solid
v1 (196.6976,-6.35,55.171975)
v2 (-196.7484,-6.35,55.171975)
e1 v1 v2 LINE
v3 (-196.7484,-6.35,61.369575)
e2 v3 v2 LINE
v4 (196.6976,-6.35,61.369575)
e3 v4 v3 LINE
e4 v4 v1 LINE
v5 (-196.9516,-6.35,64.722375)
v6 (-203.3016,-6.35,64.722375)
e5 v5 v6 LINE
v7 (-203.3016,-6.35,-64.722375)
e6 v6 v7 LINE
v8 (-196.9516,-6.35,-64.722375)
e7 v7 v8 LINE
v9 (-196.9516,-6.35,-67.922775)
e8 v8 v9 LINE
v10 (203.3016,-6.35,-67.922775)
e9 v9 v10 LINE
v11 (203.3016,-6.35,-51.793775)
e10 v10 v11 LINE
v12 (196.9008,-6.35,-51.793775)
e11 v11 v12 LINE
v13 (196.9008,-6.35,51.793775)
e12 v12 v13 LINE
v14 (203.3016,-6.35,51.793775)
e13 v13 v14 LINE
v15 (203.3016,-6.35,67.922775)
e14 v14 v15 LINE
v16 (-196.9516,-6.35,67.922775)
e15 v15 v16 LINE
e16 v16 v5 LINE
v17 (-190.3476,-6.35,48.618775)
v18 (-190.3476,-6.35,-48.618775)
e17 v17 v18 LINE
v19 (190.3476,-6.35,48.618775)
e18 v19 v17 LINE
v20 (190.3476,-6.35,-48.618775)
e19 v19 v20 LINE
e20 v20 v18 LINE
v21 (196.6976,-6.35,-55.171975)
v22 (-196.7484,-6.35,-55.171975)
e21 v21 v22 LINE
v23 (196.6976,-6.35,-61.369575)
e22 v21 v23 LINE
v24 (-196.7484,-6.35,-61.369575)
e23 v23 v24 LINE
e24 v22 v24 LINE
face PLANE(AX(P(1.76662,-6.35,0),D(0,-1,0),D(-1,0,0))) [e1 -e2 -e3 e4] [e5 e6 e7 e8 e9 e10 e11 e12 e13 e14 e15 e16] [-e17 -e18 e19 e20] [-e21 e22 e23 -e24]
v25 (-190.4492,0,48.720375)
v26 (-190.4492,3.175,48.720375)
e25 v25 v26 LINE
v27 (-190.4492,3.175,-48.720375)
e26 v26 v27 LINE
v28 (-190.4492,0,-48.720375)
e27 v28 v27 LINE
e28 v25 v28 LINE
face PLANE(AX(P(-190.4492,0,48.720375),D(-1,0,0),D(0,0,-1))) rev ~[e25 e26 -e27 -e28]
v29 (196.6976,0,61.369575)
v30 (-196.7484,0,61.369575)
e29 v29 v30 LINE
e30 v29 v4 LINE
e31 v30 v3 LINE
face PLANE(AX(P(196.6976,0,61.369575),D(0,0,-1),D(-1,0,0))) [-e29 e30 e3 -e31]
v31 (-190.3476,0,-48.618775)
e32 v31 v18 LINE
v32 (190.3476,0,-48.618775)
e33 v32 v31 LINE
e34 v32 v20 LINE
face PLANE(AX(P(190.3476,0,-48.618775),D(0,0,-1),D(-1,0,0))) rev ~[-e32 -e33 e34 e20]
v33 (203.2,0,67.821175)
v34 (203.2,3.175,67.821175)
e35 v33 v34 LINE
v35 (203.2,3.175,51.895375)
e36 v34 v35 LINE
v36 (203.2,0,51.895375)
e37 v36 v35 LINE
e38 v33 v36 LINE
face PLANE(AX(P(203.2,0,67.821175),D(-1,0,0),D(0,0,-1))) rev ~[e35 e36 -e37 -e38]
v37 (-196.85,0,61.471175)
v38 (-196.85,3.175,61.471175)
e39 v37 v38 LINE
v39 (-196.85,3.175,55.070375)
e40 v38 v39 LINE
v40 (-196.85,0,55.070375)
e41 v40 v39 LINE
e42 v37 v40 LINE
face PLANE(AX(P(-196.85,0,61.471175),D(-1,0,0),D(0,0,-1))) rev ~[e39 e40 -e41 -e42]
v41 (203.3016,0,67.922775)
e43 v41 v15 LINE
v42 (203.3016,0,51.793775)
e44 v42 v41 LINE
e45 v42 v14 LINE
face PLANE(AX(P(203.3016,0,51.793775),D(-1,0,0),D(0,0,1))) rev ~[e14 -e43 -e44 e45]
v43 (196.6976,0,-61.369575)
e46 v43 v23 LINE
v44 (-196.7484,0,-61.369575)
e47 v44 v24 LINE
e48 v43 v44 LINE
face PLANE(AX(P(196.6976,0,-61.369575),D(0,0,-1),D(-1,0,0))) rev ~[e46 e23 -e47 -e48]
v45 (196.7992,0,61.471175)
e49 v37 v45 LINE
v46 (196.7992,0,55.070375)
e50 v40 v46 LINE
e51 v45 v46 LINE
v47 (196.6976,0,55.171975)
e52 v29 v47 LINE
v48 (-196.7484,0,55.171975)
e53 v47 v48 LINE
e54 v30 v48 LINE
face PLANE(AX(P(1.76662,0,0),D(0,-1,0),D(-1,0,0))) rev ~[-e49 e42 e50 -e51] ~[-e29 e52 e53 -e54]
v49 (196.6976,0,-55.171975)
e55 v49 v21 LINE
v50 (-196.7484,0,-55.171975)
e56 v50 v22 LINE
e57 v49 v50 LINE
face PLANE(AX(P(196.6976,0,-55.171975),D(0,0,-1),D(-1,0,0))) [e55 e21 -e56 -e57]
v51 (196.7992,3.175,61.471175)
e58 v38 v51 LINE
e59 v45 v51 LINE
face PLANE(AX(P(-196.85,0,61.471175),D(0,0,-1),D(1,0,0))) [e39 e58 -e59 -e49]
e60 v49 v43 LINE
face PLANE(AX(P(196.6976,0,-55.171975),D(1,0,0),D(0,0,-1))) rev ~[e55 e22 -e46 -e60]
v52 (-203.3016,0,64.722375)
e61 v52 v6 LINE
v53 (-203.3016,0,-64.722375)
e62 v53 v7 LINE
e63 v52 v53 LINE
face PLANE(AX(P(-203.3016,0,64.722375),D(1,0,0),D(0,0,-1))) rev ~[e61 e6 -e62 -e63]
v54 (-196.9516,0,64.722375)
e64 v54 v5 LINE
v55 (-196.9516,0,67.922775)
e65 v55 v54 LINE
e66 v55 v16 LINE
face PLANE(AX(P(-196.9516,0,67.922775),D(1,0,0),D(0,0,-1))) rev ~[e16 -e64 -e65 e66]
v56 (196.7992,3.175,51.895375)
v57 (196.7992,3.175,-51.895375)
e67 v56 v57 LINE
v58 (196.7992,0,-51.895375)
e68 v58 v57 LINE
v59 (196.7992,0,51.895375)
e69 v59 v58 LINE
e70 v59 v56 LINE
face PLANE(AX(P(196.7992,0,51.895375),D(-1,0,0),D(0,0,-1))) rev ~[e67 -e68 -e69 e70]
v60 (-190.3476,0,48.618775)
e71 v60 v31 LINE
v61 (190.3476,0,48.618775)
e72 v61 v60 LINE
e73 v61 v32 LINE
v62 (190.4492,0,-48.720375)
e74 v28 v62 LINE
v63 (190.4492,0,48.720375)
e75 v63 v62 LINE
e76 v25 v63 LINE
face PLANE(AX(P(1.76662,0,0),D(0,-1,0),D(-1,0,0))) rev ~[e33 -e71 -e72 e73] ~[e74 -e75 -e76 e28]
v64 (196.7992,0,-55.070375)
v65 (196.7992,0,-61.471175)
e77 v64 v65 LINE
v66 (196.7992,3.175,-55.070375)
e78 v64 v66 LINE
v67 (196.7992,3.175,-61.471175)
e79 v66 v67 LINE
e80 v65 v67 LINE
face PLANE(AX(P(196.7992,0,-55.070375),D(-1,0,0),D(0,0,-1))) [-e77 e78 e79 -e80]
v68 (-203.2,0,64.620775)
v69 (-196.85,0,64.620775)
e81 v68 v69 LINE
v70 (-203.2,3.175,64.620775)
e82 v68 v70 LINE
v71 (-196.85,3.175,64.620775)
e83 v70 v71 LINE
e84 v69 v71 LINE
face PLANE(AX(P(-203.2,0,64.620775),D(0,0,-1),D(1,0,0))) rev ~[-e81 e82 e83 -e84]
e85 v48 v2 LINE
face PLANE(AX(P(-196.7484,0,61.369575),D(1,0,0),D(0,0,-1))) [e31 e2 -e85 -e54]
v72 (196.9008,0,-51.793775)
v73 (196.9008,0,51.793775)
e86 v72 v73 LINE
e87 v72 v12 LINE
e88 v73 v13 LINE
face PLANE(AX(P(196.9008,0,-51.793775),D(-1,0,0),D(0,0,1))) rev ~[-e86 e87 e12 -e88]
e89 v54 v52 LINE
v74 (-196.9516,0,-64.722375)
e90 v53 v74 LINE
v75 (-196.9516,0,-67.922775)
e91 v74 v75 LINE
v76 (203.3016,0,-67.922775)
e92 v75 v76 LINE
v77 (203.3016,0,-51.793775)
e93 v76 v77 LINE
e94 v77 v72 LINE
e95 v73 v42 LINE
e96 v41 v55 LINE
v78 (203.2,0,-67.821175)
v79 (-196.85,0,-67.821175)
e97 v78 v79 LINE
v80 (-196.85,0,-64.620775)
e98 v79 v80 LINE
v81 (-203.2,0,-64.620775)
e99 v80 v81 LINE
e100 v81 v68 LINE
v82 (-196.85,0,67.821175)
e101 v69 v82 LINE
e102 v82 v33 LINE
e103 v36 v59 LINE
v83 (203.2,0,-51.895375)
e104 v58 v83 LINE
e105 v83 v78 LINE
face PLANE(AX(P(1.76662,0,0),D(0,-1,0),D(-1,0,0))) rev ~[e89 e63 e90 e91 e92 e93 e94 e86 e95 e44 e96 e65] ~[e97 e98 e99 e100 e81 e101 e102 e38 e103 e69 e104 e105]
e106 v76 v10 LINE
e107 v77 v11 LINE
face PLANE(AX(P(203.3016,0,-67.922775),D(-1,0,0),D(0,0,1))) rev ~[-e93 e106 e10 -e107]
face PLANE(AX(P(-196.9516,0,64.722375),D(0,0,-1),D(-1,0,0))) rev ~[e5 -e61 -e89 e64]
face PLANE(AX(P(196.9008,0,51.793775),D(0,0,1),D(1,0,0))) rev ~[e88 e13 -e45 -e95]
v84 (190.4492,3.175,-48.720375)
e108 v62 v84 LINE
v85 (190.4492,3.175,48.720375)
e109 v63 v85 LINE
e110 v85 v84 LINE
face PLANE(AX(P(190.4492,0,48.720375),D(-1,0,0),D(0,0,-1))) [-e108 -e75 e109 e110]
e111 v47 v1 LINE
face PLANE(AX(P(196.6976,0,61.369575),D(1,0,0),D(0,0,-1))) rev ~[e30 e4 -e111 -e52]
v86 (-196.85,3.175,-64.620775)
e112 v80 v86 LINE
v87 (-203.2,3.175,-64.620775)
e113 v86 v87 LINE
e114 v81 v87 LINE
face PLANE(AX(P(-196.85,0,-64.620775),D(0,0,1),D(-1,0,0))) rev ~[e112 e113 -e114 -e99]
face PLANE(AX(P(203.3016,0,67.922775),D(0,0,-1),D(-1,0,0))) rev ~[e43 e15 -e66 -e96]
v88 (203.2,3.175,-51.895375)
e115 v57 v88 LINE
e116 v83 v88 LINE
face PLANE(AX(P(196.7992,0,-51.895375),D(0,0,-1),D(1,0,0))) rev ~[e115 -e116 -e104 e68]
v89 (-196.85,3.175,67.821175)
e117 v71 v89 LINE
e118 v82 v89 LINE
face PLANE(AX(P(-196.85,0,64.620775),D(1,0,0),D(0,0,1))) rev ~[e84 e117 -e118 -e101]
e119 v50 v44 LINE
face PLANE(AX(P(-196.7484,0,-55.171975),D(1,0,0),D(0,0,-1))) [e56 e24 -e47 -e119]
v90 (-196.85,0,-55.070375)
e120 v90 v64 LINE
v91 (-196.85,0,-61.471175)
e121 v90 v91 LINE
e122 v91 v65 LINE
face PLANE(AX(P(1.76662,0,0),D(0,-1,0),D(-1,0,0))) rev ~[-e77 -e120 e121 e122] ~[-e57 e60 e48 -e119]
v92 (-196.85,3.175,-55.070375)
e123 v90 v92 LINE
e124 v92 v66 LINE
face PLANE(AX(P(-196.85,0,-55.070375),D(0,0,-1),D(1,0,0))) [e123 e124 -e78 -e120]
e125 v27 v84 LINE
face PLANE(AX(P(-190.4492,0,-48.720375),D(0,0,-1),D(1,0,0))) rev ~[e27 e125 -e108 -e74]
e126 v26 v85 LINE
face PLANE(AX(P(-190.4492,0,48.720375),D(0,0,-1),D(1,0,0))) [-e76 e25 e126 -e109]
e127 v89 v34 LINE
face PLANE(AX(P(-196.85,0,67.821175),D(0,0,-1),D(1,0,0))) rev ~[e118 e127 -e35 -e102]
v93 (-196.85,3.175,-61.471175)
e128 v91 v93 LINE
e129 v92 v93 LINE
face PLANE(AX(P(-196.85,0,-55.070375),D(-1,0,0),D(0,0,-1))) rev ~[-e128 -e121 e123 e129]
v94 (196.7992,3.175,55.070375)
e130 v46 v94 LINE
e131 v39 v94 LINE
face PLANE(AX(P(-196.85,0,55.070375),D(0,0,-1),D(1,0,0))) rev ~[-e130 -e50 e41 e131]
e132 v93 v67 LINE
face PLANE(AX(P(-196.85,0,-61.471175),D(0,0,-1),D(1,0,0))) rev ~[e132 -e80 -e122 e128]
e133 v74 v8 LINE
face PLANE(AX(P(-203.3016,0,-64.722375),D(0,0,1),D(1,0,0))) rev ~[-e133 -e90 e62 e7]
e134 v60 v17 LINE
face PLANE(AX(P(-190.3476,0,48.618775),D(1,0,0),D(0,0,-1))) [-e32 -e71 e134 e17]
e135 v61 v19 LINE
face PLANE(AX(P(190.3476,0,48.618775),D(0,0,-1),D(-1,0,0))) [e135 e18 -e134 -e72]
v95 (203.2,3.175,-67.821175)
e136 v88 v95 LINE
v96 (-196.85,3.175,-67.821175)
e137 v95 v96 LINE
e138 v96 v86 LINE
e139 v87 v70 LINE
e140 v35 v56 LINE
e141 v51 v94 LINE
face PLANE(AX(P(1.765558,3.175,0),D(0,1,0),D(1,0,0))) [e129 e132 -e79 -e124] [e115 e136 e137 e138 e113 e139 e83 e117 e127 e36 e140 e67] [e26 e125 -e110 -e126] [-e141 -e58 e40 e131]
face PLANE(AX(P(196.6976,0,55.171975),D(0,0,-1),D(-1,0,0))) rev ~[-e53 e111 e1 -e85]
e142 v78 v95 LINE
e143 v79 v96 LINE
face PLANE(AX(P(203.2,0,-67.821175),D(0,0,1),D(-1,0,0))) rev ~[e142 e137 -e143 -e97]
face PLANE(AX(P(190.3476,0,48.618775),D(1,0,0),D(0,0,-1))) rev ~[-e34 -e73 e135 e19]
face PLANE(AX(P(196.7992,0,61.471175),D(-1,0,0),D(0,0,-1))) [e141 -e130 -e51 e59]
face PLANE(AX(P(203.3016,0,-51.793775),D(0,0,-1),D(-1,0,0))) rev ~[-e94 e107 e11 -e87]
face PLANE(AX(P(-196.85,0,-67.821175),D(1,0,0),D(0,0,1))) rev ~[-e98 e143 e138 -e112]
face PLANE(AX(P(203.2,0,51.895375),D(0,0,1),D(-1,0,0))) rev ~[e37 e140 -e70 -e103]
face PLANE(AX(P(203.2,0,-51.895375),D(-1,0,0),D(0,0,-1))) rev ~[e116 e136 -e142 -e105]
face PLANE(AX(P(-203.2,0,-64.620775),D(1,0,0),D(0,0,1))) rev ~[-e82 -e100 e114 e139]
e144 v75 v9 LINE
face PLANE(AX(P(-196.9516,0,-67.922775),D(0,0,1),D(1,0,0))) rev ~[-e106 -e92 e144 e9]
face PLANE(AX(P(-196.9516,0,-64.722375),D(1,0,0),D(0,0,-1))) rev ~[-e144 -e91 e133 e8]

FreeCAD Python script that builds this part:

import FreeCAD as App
import Part
import Sketcher

V = App.Vector
Q = App.Units.Quantity


def add_polygon(sketch, points):
    """Adds a closed chain of lines whose ends are joined by coincident constraints."""
    first, n = sketch.GeometryCount, len(points)
    for a, b in zip(points, points[1:] + points[:1]):
        sketch.addGeometry(Part.LineSegment(App.Vector(*a, 0), App.Vector(*b, 0)), False)
    for i in range(n):
        sketch.addConstraint(Sketcher.Constraint("Coincident", first + i, 2, first + (i + 1) % n, 1))

doc = App.newDocument("Part")
body = doc.addObject("PartDesign::Body", "Body")

# Sketch on XZ plane
sketch1 = body.newObject("Sketcher::SketchObject", "Sketch")
sketch1.AttachmentSupport = (doc.getObject("XZ_Plane"), [""])
sketch1.MapMode = "FlatFace"
add_polygon(sketch1, [(-203.2, -64.620775), (-203.2, 64.620775), (-196.85, 64.620775), (-196.85, 67.821175), (203.2, 67.821175), (203.2, 51.895375), (196.7992, 51.895375), (196.7992, -51.895375), (203.2, -51.895375), (203.2, -67.821175), (-196.85, -67.821175), (-196.85, -64.620775)])  # lines 0-11
add_polygon(sketch1, [(196.7992, 61.471175), (-196.85, 61.471175), (-196.85, 55.070375), (196.7992, 55.070375)])  # lines 12-15
add_polygon(sketch1, [(190.4492, 48.720375), (-190.4492, 48.720375), (-190.4492, -48.720375), (190.4492, -48.720375)])  # lines 16-19
add_polygon(sketch1, [(196.7992, -55.070375), (-196.85, -55.070375), (-196.85, -61.471175), (196.7992, -61.471175)])  # lines 20-23
sketch1.addConstraint([
    Sketcher.Constraint("Vertical", 0),
    Sketcher.Constraint("Horizontal", 1),
    Sketcher.Constraint("Vertical", 2),
    Sketcher.Constraint("Horizontal", 3),
    Sketcher.Constraint("Vertical", 4),
    Sketcher.Constraint("Horizontal", 5),
    Sketcher.Constraint("Vertical", 6),
    Sketcher.Constraint("Horizontal", 7),
    Sketcher.Constraint("Vertical", 8),
    Sketcher.Constraint("Horizontal", 9),
    Sketcher.Constraint("Vertical", 10),
    Sketcher.Constraint("Horizontal", 11),
    Sketcher.Constraint("Horizontal", 12),
    Sketcher.Constraint("Vertical", 13),
    Sketcher.Constraint("Horizontal", 14),
    Sketcher.Constraint("Vertical", 15),
    Sketcher.Constraint("Horizontal", 16),
    Sketcher.Constraint("Vertical", 17),
    Sketcher.Constraint("Horizontal", 18),
    Sketcher.Constraint("Vertical", 19),
    Sketcher.Constraint("Horizontal", 20),
    Sketcher.Constraint("Vertical", 21),
    Sketcher.Constraint("Horizontal", 22),
    Sketcher.Constraint("Vertical", 23),
    Sketcher.Constraint("Symmetric", 16, 2, 18, 2, -1, 1),
    Sketcher.Constraint("Symmetric", 4, 2, 7, 2, -1),
    Sketcher.Constraint("Symmetric", 2, 2, 9, 2, -1),
    Sketcher.Constraint("Symmetric", 13, 2, 20, 2, -1),
    Sketcher.Constraint("Symmetric", 15, 2, 22, 2, -1),
    Sketcher.Constraint("Vertical", 10, 2, 12, 2),
    Sketcher.Constraint("Vertical", 6, 2, 14, 2),
    Sketcher.Constraint("Equal", 2, 10),
    Sketcher.Constraint("Equal", 7, 13),
    Sketcher.Constraint("DistanceX", 0, 2, -1, 1, Q("8 in")),
    Sketcher.Constraint("DistanceX", -1, 1, 3, 2, Q("8 in")),
    Sketcher.Constraint("DistanceX", 1, 1, 1, 2, Q("0.25 in")),
    Sketcher.Constraint("DistanceX", 5, 2, 5, 1, Q("0.252 in")),
    Sketcher.Constraint("DistanceX", 16, 2, 16, 1, Q("14.996 in")),
    Sketcher.Constraint("DistanceY", 2, 1, 2, 2, Q("0.126 in")),
    Sketcher.Constraint("DistanceY", 4, 2, 4, 1, Q("0.627 in")),
    Sketcher.Constraint("DistanceY", 12, 2, 2, 2, Q("0.25 in")),
    Sketcher.Constraint("DistanceY", 16, 2, 13, 2, Q("0.25 in")),
    Sketcher.Constraint("DistanceY", 0, 1, 0, 2, Q("129.24155 mm")),
])
pad1 = body.newObject("PartDesign::Pad", "Pad")
pad1.Profile = sketch1
pad1.Length = Q("0.125 in")
pad1.Reversed = True

# Sketch on XZ plane
sketch2 = body.newObject("Sketcher::SketchObject", "Sketch001")
sketch2.AttachmentSupport = (doc.getObject("XZ_Plane"), [""])
sketch2.MapMode = "FlatFace"
add_polygon(sketch2, [(203.3016, 51.793775), (203.3016, 67.922775), (-196.9516, 67.922775), (-196.9516, 64.722375), (-203.3016, 64.722375), (-203.3016, -64.722375), (-196.9516, -64.722375), (-196.9516, -67.922775), (203.3016, -67.922775), (203.3016, -51.793775), (196.9008, -51.793775), (196.9008, 51.793775)])  # lines 0-11
add_polygon(sketch2, [(-196.7484, 61.369575), (196.6976, 61.369575), (196.6976, 55.171975), (-196.7484, 55.171975)])  # lines 12-15
add_polygon(sketch2, [(-190.3476, 48.618775), (190.3476, 48.618775), (190.3476, -48.618775), (-190.3476, -48.618775)])  # lines 16-19
add_polygon(sketch2, [(-196.7484, -55.171975), (196.6976, -55.171975), (196.6976, -61.369575), (-196.7484, -61.369575)])  # lines 20-23
sketch2.addConstraint([
    Sketcher.Constraint("Vertical", 0),
    Sketcher.Constraint("Horizontal", 1),
    Sketcher.Constraint("Vertical", 2),
    Sketcher.Constraint("Horizontal", 3),
    Sketcher.Constraint("Vertical", 4),
    Sketcher.Constraint("Horizontal", 5),
    Sketcher.Constraint("Vertical", 6),
    Sketcher.Constraint("Horizontal", 7),
    Sketcher.Constraint("Vertical", 8),
    Sketcher.Constraint("Horizontal", 9),
    Sketcher.Constraint("Vertical", 10),
    Sketcher.Constraint("Horizontal", 11),
    Sketcher.Constraint("Horizontal", 12),
    Sketcher.Constraint("Vertical", 13),
    Sketcher.Constraint("Horizontal", 14),
    Sketcher.Constraint("Vertical", 15),
    Sketcher.Constraint("Horizontal", 16),
    Sketcher.Constraint("Vertical", 17),
    Sketcher.Constraint("Horizontal", 18),
    Sketcher.Constraint("Vertical", 19),
    Sketcher.Constraint("Horizontal", 20),
    Sketcher.Constraint("Vertical", 21),
    Sketcher.Constraint("Horizontal", 22),
    Sketcher.Constraint("Vertical", 23),
    Sketcher.Constraint("Symmetric", 16, 2, 18, 2, -1, 1),
    Sketcher.Constraint("Symmetric", 2, 2, 5, 2, -1),
    Sketcher.Constraint("Symmetric", 0, 2, 7, 2, -1),
    Sketcher.Constraint("Symmetric", 13, 2, 20, 2, -1),
    Sketcher.Constraint("Symmetric", 15, 2, 22, 2, -1),
    Sketcher.Constraint("Equal", 0, 8),
    Sketcher.Constraint("DistanceX", 3, 2, 3, 1, Q("0.25 in")),
    Sketcher.Constraint("DistanceX", 12, 1, 12, 2, Q("15.49 in")),
    Sketcher.Constraint("DistanceX", 1, 2, 1, 1, Q("15.758 in")),
    Sketcher.Constraint("DistanceX", 9, 2, 9, 1, Q("0.252 in")),
    Sketcher.Constraint("DistanceX", 16, 1, 16, 2, Q("14.988 in")),
    Sketcher.Constraint("DistanceY", 0, 1, 0, 2, Q("0.635 in")),
    Sketcher.Constraint("DistanceY", 2, 2, 2, 1, Q("0.126 in")),
    Sketcher.Constraint("DistanceY", 13, 2, 13, 1, Q("0.244 in")),
    Sketcher.Constraint("DistanceX", 12, 2, 0, 2, Q("0.26 in")),
    Sketcher.Constraint("DistanceX", 16, 2, 13, 2, Q("0.25 in")),
    Sketcher.Constraint("DistanceY", 16, 2, 0, 2, Q("0.76 in")),
    Sketcher.Constraint("DistanceY", 12, 2, 0, 2, Q("0.258 in")),
    Sketcher.Constraint("DistanceY", 4, 2, 4, 1, Q("129.44475 mm")),
])
pad2 = body.newObject("PartDesign::Pad", "Pad001")
pad2.Profile = sketch2
pad2.Length = Q("0.25 in")

doc.recompute()
